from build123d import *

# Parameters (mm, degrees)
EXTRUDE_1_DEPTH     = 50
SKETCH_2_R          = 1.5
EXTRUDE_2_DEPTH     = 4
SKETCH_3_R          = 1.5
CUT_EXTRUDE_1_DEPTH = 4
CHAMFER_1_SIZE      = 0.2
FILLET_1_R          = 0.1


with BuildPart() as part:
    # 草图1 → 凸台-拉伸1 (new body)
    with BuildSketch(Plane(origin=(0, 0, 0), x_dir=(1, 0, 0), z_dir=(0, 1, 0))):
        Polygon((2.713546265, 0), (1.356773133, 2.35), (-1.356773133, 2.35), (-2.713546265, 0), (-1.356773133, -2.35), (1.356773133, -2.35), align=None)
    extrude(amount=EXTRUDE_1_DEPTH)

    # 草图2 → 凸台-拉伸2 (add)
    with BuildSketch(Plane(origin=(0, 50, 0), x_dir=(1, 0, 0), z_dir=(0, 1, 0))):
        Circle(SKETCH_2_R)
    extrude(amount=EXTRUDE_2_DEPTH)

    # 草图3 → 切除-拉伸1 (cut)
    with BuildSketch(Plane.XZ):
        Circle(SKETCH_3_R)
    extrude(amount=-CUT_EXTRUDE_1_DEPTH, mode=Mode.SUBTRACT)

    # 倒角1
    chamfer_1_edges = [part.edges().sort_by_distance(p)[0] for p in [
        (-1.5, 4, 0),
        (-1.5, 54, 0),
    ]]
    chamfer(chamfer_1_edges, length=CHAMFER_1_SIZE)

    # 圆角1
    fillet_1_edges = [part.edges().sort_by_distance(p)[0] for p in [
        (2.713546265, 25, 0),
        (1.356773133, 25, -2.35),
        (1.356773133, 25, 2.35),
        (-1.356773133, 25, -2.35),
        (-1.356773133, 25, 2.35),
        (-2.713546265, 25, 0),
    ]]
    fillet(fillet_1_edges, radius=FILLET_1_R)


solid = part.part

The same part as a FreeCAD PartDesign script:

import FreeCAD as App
import Part
import Sketcher

V = App.Vector
Q = App.Units.Quantity


def edges_at(feature, points):
    """Names of the edges that pass closest to the given points."""
    edges = feature.Shape.Edges
    near = lambda p: min(range(len(edges)), key=lambda i: edges[i].distToShape(Part.Vertex(*p))[0])
    return sorted({f"Edge{near(p) + 1}" for p in points})


def add_polygon(sketch, points):
    """Adds a closed chain of lines whose ends are joined by coincident constraints."""
    first, n = sketch.GeometryCount, len(points)
    for a, b in zip(points, points[1:] + points[:1]):
        sketch.addGeometry(Part.LineSegment(App.Vector(*a, 0), App.Vector(*b, 0)), False)
    for i in range(n):
        sketch.addConstraint(Sketcher.Constraint("Coincident", first + i, 2, first + (i + 1) % n, 1))

doc = App.newDocument("Part")
body = doc.addObject("PartDesign::Body", "Body")

# Sketch on XZ plane
sketch1 = doc.addObject("Sketcher::SketchObject", "Sketch")
body.addObject(sketch1)
sketch1.AttachmentSupport = (doc.XZ_Plane, [""])
sketch1.MapMode = "FlatFace"
add_polygon(sketch1, [(2.7, 0), (1.4, -2.4), (-1.4, -2.4), (-2.7, 0), (-1.4, 2.4), (1.4, 2.4)])  # lines 0-5
sketch1.addConstraint([
    Sketcher.Constraint("Horizontal", 1),
    Sketcher.Constraint("Horizontal", 4),
    Sketcher.Constraint("Symmetric", 0, 2, 3, 2, -1, 1),
    Sketcher.Constraint("Symmetric", 2, 2, 5, 2, -1, 1),
    Sketcher.Constraint("PointOnObject", 2, 2, -1),
    Sketcher.Constraint("Parallel", 2, 5),
    Sketcher.Constraint("Vertical", 1, 2, 3, 2),
    Sketcher.Constraint("Angle", 0, Q("-120 deg")),
    Sketcher.Constraint("DistanceY", 1, 2, 3, 2, 4.7),
    Sketcher.Constraint("DistanceX", 1, 2, 1, 1, 2.713546),
])
pad1 = doc.addObject("PartDesign::Pad", "Pad")
body.addObject(pad1)
pad1.Profile = sketch1
pad1.Length = 50
pad1.Reversed = True

# Sketch on XZ plane
sketch2 = doc.addObject("Sketcher::SketchObject", "Sketch001")
body.addObject(sketch2)
sketch2.AttachmentSupport = (doc.XZ_Plane, [""])
sketch2.MapMode = "FlatFace"
sketch2.AttachmentOffset = App.Placement(V(0, 0, -50), App.Rotation())
sketch2.addGeometry(Part.Circle(V(0, 0, 0), V(0, 0, 1), 1.5), False)
sketch2.addConstraint([
    Sketcher.Constraint("Coincident", 0, 3, -1, 1),
    Sketcher.Constraint("Diameter", 0, 3.0),
])
pad2 = doc.addObject("PartDesign::Pad", "Pad001")
body.addObject(pad2)
pad2.Profile = sketch2
pad2.Length = 4
pad2.Reversed = True

# Sketch on XZ plane
sketch3 = doc.addObject("Sketcher::SketchObject", "Sketch002")
body.addObject(sketch3)
sketch3.AttachmentSupport = (doc.XZ_Plane, [""])
sketch3.MapMode = "FlatFace"
sketch3.addGeometry(Part.Circle(V(0, 0, 0), V(0, 0, 1), 1.5), False)
sketch3.addConstraint([
    Sketcher.Constraint("Coincident", 0, 3, -1, 1),
    Sketcher.Constraint("Diameter", 0, 3.0),
])
pocket1 = doc.addObject("PartDesign::Pocket", "Pocket")
body.addObject(pocket1)
pocket1.Profile = sketch3
pocket1.Length = 4
doc.recompute()

chamfer = doc.addObject("PartDesign::Chamfer", "Chamfer")
body.addObject(chamfer)
chamfer.Base = (pocket1, edges_at(pocket1, [(-1.5, 4, 0), (-1.5, 54, 0)]))
chamfer.Size = 0.2
doc.recompute()

fillet = doc.addObject("PartDesign::Fillet", "Fillet")
body.addObject(fillet)
fillet.Base = (chamfer, edges_at(chamfer, [
    (2.714, 25, 0),
    (1.357, 25, -2.35),
    (1.357, 25, 2.35),
    (-1.357, 25, -2.35),
    (-1.357, 25, 2.35),
    (-2.714, 25, 0),
]))
fillet.Radius = 0.1

doc.recompute()
